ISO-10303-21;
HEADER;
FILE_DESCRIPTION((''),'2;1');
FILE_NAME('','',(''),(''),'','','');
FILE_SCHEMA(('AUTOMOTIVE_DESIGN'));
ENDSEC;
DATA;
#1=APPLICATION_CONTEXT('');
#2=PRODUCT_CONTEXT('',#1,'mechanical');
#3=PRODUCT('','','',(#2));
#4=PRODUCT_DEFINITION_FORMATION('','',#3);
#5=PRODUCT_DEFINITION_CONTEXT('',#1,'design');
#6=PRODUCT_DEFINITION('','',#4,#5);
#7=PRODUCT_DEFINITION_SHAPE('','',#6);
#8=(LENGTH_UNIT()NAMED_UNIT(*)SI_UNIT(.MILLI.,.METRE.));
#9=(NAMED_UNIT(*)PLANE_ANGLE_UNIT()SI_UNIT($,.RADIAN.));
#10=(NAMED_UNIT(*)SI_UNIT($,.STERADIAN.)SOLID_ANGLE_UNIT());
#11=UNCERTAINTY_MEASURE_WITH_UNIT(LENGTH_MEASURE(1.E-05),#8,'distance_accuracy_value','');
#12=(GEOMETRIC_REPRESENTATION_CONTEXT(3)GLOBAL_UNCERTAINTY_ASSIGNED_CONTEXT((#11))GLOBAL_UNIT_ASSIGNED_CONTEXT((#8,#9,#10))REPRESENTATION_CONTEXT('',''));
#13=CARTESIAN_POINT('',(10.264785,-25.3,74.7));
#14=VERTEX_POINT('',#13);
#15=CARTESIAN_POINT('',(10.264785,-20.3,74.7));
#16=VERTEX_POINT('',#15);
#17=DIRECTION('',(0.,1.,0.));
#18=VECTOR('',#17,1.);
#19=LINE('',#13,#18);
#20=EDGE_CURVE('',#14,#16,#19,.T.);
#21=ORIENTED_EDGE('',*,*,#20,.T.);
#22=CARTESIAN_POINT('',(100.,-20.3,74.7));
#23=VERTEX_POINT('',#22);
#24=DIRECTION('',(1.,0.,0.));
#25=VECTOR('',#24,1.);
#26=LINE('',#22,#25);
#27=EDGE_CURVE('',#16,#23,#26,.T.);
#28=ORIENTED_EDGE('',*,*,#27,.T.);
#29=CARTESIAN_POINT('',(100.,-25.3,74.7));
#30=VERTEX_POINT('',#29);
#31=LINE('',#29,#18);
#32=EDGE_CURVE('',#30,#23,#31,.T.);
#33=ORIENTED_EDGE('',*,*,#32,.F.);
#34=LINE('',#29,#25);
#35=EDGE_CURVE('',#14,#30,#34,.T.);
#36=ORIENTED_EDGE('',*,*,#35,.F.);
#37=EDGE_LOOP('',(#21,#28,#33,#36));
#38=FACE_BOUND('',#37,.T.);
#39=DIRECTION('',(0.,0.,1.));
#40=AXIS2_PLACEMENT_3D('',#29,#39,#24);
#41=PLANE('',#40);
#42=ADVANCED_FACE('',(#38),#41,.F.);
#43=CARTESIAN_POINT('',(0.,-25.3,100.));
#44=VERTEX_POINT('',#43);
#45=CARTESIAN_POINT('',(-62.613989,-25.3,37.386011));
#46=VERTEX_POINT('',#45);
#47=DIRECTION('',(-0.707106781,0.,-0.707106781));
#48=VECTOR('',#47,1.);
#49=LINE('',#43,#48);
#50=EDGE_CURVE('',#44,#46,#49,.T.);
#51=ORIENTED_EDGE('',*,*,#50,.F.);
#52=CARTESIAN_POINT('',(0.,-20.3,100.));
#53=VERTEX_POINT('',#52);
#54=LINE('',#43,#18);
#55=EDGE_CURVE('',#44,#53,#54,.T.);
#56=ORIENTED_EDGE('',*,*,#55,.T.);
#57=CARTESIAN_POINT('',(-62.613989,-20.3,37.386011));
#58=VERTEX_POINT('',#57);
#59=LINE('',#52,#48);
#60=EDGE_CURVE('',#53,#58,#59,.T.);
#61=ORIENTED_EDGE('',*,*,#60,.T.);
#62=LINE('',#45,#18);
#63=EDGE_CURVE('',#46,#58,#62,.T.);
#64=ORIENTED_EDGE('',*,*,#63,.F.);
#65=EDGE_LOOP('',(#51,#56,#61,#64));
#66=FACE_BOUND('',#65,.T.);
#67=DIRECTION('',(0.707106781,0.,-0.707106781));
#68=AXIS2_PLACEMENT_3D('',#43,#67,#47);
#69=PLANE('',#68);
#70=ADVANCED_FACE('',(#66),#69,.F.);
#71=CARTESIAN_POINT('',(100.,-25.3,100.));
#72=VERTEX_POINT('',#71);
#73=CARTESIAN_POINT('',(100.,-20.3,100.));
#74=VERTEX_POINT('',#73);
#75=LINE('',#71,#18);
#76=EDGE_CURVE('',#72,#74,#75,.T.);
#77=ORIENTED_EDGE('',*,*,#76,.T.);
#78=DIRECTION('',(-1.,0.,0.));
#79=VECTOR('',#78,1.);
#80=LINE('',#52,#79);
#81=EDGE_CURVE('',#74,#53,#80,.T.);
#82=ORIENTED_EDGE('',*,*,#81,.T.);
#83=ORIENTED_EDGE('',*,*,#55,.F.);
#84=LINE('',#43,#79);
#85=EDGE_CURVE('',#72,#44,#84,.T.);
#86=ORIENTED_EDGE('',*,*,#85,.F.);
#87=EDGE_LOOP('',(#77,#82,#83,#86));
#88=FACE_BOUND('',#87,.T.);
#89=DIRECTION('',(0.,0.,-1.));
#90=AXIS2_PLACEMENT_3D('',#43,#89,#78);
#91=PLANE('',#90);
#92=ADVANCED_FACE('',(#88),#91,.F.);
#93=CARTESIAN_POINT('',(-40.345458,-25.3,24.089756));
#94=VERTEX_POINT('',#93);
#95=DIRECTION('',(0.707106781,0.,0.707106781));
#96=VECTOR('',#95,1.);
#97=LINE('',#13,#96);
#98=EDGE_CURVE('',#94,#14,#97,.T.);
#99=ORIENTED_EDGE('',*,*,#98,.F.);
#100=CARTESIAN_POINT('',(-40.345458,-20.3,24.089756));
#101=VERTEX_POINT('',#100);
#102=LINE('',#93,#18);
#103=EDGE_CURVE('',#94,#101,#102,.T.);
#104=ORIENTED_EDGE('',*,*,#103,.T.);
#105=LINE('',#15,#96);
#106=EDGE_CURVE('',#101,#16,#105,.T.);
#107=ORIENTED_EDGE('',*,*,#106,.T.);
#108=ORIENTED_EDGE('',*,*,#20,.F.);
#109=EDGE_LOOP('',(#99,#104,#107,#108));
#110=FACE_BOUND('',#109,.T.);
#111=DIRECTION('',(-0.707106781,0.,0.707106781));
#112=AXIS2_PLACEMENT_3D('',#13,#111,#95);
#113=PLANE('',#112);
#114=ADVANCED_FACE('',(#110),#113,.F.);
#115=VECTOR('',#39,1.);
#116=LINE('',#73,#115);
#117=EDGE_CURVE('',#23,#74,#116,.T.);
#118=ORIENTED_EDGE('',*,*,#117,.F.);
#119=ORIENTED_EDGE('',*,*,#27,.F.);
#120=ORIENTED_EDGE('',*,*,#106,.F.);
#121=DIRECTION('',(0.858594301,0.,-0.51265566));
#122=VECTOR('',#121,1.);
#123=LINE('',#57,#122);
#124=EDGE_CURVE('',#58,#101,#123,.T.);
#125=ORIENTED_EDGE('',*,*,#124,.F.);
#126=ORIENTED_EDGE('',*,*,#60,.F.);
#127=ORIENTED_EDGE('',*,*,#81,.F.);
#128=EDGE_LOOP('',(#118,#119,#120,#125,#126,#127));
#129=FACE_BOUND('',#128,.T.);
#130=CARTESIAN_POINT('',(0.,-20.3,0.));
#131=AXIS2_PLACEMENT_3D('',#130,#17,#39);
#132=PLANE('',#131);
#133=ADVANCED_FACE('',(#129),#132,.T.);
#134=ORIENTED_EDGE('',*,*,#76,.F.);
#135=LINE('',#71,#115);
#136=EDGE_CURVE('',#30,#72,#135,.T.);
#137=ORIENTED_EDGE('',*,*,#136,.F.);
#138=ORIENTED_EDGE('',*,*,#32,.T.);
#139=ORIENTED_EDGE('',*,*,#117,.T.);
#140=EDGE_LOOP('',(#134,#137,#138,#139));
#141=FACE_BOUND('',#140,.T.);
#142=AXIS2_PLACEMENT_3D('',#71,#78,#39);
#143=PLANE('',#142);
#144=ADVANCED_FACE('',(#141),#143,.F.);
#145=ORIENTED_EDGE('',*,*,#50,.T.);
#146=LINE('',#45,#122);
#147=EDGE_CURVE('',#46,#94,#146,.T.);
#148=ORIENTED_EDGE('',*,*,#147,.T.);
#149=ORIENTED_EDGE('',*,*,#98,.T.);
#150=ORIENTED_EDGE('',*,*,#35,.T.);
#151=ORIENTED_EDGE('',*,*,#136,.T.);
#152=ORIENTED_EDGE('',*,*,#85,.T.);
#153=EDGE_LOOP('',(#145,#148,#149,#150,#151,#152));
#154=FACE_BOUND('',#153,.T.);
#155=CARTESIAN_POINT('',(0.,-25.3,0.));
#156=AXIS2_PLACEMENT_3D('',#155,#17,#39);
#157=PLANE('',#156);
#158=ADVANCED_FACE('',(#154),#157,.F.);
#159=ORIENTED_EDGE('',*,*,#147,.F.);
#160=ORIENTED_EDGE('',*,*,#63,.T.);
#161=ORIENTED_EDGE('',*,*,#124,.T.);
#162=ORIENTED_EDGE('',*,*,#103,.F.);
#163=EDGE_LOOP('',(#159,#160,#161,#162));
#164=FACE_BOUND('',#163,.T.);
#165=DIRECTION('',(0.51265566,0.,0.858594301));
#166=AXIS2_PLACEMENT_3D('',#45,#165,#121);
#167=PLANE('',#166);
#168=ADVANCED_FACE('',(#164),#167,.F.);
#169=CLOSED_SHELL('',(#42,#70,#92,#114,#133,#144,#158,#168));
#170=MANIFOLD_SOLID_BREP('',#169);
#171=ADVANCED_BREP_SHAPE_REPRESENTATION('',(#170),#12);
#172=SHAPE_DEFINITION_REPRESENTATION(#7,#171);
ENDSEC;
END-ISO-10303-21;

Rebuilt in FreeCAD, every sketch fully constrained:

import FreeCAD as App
import Part
import Sketcher

V = App.Vector
Q = App.Units.Quantity


def add_polygon(sketch, points):
    """Adds a closed chain of lines whose ends are joined by coincident constraints."""
    first, n = sketch.GeometryCount, len(points)
    for a, b in zip(points, points[1:] + points[:1]):
        sketch.addGeometry(Part.LineSegment(App.Vector(*a, 0), App.Vector(*b, 0)), False)
    for i in range(n):
        sketch.addConstraint(Sketcher.Constraint("Coincident", first + i, 2, first + (i + 1) % n, 1))

doc = App.newDocument("Part")
params = doc.addObject("Spreadsheet::Sheet", "Params")
for row, (alias, value) in enumerate([
    ("sketch1_width", "100 mm"),
    ("sketch1_height", "25.3 mm"),
    ("pad1_length", "5 mm"),
], start=1):
    params.set(f"A{row}", alias)
    params.set(f"B{row}", "=" + value)
    params.setAlias(f"B{row}", alias)

body = doc.addObject("PartDesign::Body", "Body")

sketch1 = doc.addObject("Sketcher::SketchObject", "Sketch")
body.addObject(sketch1)
sketch1.AttachmentSupport = (doc.XZ_Plane, [""])
sketch1.MapMode = "FlatFace"
sketch1.AttachmentOffset = App.Placement(V(0, 0, 20.3), App.Rotation())
add_polygon(sketch1, [(0, 100), (-62.613989, 37.386011), (-40.345458, 24.089756), (10.264785, 74.7), (100, 74.7), (100, 100)])
sketch1.addConstraint([
    Sketcher.Constraint("Horizontal", 3),
    Sketcher.Constraint("Vertical", 4),
    Sketcher.Constraint("Horizontal", 5),
    Sketcher.Constraint("PointOnObject", 5, 2, -2),
    Sketcher.Constraint("Parallel", 0, 2),
    Sketcher.Constraint("DistanceX", 5, 2, 5, 1, Q("100 mm")),
    Sketcher.Constraint("Angle", 0, Q("-135 deg")),
    Sketcher.Constraint("DistanceY", 4, 1, 4, 2, Q("25.3 mm")),
    Sketcher.Constraint("DistanceY", -1, 1, 4, 2, Q("100 mm")),
    Sketcher.Constraint("DistanceX", 3, 1, 3, 2, Q("89.735215 mm")),
    Sketcher.Constraint("DistanceX", 0, 2, -1, 1, Q("62.613989 mm")),
    Sketcher.Constraint("DistanceX", 1, 2, -1, 1, Q("40.345458 mm")),
])
sketch1.setExpression("Constraints[11]", "Params.sketch1_width")
sketch1.setExpression("Constraints[13]", "Params.sketch1_height")
pad1 = doc.addObject("PartDesign::Pad", "Pad")
body.addObject(pad1)
pad1.Profile = sketch1
pad1.setExpression("Length", "Params.pad1_length")

doc.recompute()
